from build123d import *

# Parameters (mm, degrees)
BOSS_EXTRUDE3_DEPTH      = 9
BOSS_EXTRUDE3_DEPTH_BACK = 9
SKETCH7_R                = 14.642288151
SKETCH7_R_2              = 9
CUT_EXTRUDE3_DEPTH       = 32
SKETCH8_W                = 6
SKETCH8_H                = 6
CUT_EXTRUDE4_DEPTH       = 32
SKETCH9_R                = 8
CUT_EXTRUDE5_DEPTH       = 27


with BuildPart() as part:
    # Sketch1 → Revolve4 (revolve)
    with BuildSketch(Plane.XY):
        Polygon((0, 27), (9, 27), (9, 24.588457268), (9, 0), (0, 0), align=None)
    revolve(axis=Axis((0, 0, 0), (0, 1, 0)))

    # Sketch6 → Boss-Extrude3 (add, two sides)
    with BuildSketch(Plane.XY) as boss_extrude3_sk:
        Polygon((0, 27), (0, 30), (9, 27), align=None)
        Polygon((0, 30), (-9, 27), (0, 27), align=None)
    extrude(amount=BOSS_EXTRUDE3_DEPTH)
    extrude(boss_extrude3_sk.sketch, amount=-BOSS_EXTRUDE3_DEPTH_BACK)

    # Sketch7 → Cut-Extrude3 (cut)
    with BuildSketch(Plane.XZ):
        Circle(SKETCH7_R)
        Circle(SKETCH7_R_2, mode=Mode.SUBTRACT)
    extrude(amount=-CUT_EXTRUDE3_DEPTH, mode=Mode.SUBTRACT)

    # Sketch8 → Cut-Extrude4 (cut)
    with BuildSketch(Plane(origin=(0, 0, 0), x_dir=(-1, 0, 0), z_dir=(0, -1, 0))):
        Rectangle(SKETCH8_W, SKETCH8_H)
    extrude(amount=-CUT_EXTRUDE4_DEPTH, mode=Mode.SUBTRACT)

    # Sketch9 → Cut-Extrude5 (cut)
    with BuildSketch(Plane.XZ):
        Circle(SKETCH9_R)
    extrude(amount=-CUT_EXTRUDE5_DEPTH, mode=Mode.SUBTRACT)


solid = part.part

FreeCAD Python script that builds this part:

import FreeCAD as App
import Part
import Sketcher

doc = App.newDocument("Part")
body = doc.addObject("PartDesign::Body", "Body")

# Sketch on XY plane
sketch1 = body.newObject("Sketcher::SketchObject", "Sketch")
sketch1.AttachmentSupport = (doc.getObject("XY_Plane"), [""])
sketch1.MapMode = "FlatFace"
sketch1.addGeometry(Part.LineSegment(App.Vector(9, 27, 0), App.Vector(0, 27, 0)), False)
sketch1.addGeometry(Part.LineSegment(App.Vector(0, 27, 0), App.Vector(0, 0, 0)), False)
sketch1.addGeometry(Part.LineSegment(App.Vector(0, 0, 0), App.Vector(9, 0, 0)), False)
sketch1.addGeometry(Part.LineSegment(App.Vector(9, 0, 0), App.Vector(9, 27, 0)), False)
sketch1.addConstraint(Sketcher.Constraint("Coincident", 0, 2, 1, 1))
sketch1.addConstraint(Sketcher.Constraint("Coincident", 1, 2, 2, 1))
sketch1.addConstraint(Sketcher.Constraint("Coincident", 2, 2, 3, 1))
sketch1.addConstraint(Sketcher.Constraint("Coincident", 3, 2, 0, 1))
sketch1.addConstraint(Sketcher.Constraint("Horizontal", 0))
sketch1.addConstraint(Sketcher.Constraint("Vertical", 1))
sketch1.addConstraint(Sketcher.Constraint("Horizontal", 2))
sketch1.addConstraint(Sketcher.Constraint("Vertical", 3))
sketch1.addConstraint(Sketcher.Constraint("Coincident", 1, 2, -1, 1))
sketch1.addConstraint(Sketcher.Constraint("DistanceX", 0, 2, 0, 1, 9.0))
sketch1.addConstraint(Sketcher.Constraint("DistanceY", 1, 2, 1, 1, 27.0))
revolution = body.newObject("PartDesign::Revolution", "Revolution")
revolution.Profile = sketch1
revolution.ReferenceAxis = (sketch1, ["V_Axis"])
revolution.Angle = 360

# Sketch on XY plane
sketch2 = body.newObject("Sketcher::SketchObject", "Sketch001")
sketch2.AttachmentSupport = (doc.getObject("XY_Plane"), [""])
sketch2.MapMode = "FlatFace"
sketch2.addGeometry(Part.LineSegment(App.Vector(9, 27, 0), App.Vector(0, 30, 0)), False)
sketch2.addGeometry(Part.LineSegment(App.Vector(0, 30, 0), App.Vector(-9, 27, 0)), False)
sketch2.addGeometry(Part.LineSegment(App.Vector(-9, 27, 0), App.Vector(9, 27, 0)), False)
sketch2.addConstraint(Sketcher.Constraint("Coincident", 0, 2, 1, 1))
sketch2.addConstraint(Sketcher.Constraint("Coincident", 1, 2, 2, 1))
sketch2.addConstraint(Sketcher.Constraint("Coincident", 2, 2, 0, 1))
sketch2.addConstraint(Sketcher.Constraint("Horizontal", 2))
sketch2.addConstraint(Sketcher.Constraint("PointOnObject", 0, 2, -2))
sketch2.addConstraint(Sketcher.Constraint("Equal", 0, 1))
sketch2.addConstraint(Sketcher.Constraint("DistanceX", 2, 1, 2, 2, 18.0))
sketch2.addConstraint(Sketcher.Constraint("DistanceY", -1, 1, 0, 2, 30.0))
sketch2.addConstraint(Sketcher.Constraint("DistanceY", -1, 1, 1, 2, 27.0))
pad1 = body.newObject("PartDesign::Pad", "Pad")
pad1.Profile = sketch2
pad1.Type = "TwoLengths"
pad1.Length = 9
pad1.Length2 = 9

# Sketch on XZ plane
sketch3 = body.newObject("Sketcher::SketchObject", "Sketch002")
sketch3.AttachmentSupport = (doc.getObject("XZ_Plane"), [""])
sketch3.MapMode = "FlatFace"
sketch3.addGeometry(Part.Circle(App.Vector(0, 0, 0), App.Vector(0, 0, 1), 15), False)
sketch3.addGeometry(Part.Circle(App.Vector(0, 0, 0), App.Vector(0, 0, 1), 9), False)
sketch3.addConstraint(Sketcher.Constraint("Coincident", 0, 3, -1, 1))
sketch3.addConstraint(Sketcher.Constraint("Coincident", 1, 3, -1, 1))
sketch3.addConstraint(Sketcher.Constraint("Diameter", 1, 18.0))
sketch3.addConstraint(Sketcher.Constraint("Diameter", 0, 29.284576))
pocket1 = body.newObject("PartDesign::Pocket", "Pocket")
pocket1.Profile = sketch3
pocket1.Length = 32

# Sketch on XZ plane
sketch4 = body.newObject("Sketcher::SketchObject", "Sketch003")
sketch4.AttachmentSupport = (doc.getObject("XZ_Plane"), [""])
sketch4.MapMode = "FlatFace"
sketch4.addGeometry(Part.LineSegment(App.Vector(3, -3, 0), App.Vector(3, 3, 0)), False)
sketch4.addGeometry(Part.LineSegment(App.Vector(3, 3, 0), App.Vector(-3, 3, 0)), False)
sketch4.addGeometry(Part.LineSegment(App.Vector(-3, 3, 0), App.Vector(-3, -3, 0)), False)
sketch4.addGeometry(Part.LineSegment(App.Vector(-3, -3, 0), App.Vector(3, -3, 0)), False)
sketch4.addConstraint(Sketcher.Constraint("Coincident", 0, 2, 1, 1))
sketch4.addConstraint(Sketcher.Constraint("Coincident", 1, 2, 2, 1))
sketch4.addConstraint(Sketcher.Constraint("Coincident", 2, 2, 3, 1))
sketch4.addConstraint(Sketcher.Constraint("Coincident", 3, 2, 0, 1))
sketch4.addConstraint(Sketcher.Constraint("Vertical", 0))
sketch4.addConstraint(Sketcher.Constraint("Horizontal", 1))
sketch4.addConstraint(Sketcher.Constraint("Vertical", 2))
sketch4.addConstraint(Sketcher.Constraint("Horizontal", 3))
sketch4.addConstraint(Sketcher.Constraint("Symmetric", 0, 2, 2, 2, -1, 1))
sketch4.addConstraint(Sketcher.Constraint("Equal", 3, 0))
sketch4.addConstraint(Sketcher.Constraint("DistanceX", 1, 2, 1, 1, 6.0))
pocket2 = body.newObject("PartDesign::Pocket", "Pocket001")
pocket2.Profile = sketch4
pocket2.Length = 32

# Sketch on XZ plane
sketch5 = body.newObject("Sketcher::SketchObject", "Sketch004")
sketch5.AttachmentSupport = (doc.getObject("XZ_Plane"), [""])
sketch5.MapMode = "FlatFace"
sketch5.addGeometry(Part.Circle(App.Vector(0, 0, 0), App.Vector(0, 0, 1), 8), False)
sketch5.addConstraint(Sketcher.Constraint("Coincident", 0, 3, -1, 1))
sketch5.addConstraint(Sketcher.Constraint("Diameter", 0, 16.0))
pocket3 = body.newObject("PartDesign::Pocket", "Pocket002")
pocket3.Profile = sketch5
pocket3.Length = 27

doc.recompute()
